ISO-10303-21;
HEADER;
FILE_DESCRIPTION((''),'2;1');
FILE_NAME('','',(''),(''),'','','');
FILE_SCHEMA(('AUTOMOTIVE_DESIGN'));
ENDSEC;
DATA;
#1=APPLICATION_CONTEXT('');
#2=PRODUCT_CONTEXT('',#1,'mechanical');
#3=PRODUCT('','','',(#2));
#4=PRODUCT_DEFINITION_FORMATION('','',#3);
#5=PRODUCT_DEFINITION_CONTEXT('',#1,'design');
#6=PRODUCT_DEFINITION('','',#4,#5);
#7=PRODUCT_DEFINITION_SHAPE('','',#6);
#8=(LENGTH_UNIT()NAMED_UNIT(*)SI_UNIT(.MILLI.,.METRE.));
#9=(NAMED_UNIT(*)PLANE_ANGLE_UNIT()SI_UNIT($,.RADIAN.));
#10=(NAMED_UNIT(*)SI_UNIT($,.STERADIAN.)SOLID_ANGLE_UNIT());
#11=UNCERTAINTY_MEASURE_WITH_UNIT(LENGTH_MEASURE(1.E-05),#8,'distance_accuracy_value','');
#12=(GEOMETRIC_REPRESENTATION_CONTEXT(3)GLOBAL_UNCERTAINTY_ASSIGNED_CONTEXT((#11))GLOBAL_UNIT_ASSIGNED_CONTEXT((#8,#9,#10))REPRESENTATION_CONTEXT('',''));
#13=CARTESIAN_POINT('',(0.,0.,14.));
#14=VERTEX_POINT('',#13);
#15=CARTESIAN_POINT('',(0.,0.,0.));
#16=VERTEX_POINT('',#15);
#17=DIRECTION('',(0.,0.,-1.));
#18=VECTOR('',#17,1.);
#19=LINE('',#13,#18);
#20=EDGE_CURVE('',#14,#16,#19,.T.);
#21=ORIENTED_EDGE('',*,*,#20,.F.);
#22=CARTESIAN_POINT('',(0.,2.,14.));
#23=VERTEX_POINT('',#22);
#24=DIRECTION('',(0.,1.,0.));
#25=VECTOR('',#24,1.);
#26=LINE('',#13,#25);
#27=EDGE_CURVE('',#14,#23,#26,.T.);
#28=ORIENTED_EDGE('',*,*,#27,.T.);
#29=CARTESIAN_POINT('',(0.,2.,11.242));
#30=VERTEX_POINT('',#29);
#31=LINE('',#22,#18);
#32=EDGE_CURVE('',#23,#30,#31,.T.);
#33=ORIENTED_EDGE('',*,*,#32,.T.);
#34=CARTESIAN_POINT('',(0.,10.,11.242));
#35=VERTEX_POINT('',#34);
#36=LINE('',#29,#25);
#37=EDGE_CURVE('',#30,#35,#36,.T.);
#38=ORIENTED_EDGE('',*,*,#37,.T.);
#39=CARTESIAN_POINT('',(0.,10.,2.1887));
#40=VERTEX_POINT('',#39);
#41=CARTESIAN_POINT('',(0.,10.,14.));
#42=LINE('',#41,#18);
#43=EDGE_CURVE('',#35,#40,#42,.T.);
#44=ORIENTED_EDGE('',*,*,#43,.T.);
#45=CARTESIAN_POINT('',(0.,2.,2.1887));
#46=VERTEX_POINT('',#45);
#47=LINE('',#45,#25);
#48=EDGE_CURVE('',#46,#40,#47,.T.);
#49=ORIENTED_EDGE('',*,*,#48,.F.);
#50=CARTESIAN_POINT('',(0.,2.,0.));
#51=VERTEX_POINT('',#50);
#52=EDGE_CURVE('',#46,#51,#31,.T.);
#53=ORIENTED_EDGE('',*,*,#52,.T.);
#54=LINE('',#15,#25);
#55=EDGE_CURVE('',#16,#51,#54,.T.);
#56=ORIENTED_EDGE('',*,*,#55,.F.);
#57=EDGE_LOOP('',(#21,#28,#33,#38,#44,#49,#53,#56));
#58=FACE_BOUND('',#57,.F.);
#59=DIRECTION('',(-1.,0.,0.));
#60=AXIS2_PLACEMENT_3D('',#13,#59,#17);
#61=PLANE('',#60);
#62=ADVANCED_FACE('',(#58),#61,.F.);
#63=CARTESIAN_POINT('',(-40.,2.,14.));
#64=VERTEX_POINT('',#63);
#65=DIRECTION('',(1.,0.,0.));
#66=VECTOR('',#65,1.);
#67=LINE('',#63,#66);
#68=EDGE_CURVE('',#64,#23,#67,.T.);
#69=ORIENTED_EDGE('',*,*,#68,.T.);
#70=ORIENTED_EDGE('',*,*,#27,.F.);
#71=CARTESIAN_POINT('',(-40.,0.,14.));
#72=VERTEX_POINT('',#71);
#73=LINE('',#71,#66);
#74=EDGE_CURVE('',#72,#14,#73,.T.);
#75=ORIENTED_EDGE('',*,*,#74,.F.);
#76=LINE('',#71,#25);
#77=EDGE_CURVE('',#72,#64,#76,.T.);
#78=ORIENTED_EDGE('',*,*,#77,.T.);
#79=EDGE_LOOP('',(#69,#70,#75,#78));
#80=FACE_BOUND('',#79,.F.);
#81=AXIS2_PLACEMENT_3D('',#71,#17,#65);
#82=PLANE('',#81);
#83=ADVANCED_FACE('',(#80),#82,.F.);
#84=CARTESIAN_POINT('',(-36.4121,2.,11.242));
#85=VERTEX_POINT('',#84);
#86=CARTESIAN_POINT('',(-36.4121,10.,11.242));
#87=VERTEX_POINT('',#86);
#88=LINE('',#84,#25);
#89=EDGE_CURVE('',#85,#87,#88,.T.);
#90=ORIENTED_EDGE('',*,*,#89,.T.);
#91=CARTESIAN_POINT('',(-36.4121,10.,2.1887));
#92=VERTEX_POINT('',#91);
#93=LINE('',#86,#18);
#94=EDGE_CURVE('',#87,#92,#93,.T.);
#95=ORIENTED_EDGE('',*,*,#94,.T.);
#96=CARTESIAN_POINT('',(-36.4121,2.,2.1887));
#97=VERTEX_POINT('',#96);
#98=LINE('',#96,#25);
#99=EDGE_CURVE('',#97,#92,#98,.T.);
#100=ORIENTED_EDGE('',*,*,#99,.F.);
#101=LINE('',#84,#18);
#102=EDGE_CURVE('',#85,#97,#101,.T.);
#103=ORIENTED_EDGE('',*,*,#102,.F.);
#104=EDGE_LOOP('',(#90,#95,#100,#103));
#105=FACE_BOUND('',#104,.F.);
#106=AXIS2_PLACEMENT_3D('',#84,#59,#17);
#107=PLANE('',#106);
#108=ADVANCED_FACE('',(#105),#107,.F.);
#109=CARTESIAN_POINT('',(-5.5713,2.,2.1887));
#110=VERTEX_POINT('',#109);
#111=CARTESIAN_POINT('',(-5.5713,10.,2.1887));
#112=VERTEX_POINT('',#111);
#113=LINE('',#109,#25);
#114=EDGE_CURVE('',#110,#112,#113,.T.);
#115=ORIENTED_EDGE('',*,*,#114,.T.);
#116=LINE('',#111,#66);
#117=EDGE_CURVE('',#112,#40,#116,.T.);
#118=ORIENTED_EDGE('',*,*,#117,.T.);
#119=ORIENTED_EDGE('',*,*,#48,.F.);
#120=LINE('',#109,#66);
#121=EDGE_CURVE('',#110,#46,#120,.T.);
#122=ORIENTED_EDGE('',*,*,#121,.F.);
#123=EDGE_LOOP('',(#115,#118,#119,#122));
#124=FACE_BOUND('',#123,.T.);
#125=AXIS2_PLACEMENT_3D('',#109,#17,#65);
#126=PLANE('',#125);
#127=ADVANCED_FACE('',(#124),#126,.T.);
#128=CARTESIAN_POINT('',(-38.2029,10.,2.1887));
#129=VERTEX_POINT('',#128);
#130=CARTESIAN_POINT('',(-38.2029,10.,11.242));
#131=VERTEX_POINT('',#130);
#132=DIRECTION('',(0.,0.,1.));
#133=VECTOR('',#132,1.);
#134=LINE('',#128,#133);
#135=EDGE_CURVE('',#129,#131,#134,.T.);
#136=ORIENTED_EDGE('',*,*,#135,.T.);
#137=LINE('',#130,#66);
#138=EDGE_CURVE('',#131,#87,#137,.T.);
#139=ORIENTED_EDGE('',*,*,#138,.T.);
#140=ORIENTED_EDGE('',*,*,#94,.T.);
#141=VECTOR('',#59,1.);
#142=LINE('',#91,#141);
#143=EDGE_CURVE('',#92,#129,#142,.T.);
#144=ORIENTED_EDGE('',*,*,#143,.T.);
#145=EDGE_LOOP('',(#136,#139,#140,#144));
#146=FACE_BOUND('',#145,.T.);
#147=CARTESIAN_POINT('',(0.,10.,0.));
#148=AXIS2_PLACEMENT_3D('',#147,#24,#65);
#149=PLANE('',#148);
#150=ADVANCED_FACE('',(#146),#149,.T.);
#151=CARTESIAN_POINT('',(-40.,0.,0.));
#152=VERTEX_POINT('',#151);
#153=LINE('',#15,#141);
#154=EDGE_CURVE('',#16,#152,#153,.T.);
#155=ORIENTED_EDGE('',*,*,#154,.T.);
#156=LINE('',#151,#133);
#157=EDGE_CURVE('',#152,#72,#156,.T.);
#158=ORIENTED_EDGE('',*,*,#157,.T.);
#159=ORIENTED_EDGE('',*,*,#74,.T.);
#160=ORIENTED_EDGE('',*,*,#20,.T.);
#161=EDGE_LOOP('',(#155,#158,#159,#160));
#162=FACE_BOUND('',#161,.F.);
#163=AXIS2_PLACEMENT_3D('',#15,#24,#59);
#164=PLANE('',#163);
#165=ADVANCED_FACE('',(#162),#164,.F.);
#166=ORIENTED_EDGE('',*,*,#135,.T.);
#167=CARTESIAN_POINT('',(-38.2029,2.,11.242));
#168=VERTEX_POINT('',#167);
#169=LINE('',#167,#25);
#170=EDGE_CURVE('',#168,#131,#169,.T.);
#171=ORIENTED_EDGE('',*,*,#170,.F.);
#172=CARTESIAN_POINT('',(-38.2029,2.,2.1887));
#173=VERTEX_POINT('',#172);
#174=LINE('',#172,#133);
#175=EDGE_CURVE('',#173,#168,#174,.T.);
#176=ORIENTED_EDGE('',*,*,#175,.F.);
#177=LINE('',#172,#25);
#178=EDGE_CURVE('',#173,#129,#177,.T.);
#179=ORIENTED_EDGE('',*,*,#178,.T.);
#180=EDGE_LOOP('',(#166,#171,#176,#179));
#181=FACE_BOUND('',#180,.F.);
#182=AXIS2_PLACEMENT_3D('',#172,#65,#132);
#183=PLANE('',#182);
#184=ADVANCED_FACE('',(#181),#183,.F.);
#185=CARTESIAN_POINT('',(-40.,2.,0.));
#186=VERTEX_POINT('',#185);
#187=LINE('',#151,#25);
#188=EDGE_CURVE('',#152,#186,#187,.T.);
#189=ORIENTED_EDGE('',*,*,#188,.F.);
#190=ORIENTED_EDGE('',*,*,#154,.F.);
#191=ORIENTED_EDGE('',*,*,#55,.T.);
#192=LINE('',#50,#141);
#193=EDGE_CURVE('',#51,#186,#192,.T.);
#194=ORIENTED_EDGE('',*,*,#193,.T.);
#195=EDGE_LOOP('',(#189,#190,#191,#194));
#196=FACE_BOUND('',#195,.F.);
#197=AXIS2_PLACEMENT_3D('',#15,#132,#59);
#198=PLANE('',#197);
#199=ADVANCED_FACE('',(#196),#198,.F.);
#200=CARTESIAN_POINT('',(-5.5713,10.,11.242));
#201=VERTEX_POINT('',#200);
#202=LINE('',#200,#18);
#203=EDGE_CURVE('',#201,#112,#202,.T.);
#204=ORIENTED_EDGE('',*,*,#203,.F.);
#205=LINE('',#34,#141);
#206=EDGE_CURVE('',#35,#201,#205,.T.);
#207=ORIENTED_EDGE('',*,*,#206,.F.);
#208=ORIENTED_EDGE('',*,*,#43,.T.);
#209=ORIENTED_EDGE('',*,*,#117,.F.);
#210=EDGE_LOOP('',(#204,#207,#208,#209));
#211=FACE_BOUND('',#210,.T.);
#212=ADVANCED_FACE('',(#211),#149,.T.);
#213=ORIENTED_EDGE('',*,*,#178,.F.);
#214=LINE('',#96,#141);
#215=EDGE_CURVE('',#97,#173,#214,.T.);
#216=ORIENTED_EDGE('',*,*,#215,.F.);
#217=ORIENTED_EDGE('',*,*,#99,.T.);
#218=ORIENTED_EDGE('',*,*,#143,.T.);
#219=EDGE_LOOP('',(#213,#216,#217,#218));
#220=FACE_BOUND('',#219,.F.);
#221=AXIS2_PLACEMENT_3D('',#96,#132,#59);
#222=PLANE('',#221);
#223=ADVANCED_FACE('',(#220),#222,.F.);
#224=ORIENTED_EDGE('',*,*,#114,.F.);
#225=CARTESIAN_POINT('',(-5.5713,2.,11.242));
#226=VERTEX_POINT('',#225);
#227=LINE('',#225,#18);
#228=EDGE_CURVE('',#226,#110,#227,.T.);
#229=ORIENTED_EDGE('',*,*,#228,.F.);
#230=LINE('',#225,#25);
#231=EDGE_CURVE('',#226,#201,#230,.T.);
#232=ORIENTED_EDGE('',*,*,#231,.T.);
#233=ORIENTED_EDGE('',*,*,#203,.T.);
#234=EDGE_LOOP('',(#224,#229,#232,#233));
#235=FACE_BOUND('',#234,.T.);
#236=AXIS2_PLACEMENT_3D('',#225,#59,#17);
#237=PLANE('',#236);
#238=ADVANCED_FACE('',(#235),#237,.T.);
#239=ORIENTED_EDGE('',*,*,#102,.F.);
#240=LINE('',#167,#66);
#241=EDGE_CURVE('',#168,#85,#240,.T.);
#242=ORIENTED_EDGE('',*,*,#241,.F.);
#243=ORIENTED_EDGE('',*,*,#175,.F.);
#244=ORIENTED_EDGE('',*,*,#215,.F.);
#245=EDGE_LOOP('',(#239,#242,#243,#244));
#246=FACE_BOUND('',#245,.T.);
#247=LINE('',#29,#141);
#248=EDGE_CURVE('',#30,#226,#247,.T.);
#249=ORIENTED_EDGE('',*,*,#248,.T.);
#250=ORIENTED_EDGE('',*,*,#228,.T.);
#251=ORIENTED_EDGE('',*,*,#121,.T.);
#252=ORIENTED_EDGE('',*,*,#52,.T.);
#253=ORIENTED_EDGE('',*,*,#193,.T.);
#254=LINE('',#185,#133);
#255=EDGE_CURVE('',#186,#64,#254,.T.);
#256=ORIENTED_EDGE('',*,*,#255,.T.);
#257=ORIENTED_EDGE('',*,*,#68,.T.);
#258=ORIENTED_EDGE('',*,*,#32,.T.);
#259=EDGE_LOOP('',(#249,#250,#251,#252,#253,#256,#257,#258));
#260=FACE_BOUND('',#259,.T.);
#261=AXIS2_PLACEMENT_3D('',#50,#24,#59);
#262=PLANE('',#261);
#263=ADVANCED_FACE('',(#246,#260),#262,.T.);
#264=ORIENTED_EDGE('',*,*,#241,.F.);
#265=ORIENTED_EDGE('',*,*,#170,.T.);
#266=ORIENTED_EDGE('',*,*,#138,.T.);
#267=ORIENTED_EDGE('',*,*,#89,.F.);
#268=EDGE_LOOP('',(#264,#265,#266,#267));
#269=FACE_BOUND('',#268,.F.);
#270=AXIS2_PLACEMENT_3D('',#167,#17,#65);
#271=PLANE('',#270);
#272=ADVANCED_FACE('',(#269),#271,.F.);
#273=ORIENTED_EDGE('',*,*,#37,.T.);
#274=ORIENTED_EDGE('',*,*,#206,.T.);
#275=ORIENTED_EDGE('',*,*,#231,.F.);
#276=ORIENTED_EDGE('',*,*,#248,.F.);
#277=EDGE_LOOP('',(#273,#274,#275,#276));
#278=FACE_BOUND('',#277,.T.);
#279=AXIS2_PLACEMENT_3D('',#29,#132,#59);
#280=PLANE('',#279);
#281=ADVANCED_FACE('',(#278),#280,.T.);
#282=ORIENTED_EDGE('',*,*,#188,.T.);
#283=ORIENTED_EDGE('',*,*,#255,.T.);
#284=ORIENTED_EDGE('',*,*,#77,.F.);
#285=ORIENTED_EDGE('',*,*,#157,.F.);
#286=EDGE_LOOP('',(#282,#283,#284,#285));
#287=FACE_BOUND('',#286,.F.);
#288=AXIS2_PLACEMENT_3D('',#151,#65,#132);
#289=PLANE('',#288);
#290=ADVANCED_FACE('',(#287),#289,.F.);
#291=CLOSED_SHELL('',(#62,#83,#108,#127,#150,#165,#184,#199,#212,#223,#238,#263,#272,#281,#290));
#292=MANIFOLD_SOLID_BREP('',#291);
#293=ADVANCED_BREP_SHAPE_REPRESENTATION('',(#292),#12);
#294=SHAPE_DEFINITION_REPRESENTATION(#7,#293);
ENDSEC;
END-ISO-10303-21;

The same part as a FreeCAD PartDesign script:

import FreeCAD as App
import Part
import Sketcher

doc = App.newDocument("Part")
params = doc.addObject("Spreadsheet::Sheet", "Params")
for row, (alias, value) in enumerate([
    ("sketch1_width", "40 mm"),
    ("sketch1_height", "14 mm"),
    ("pad1_length", "2 mm"),
    ("pad2_length", "8 mm"),
], start=1):
    params.set(f"A{row}", alias)
    params.set(f"B{row}", "=" + value)
    params.setAlias(f"B{row}", alias)

body = doc.addObject("PartDesign::Body", "Body")

# Sketch on XZ plane
sketch1 = doc.addObject("Sketcher::SketchObject", "Sketch")
body.addObject(sketch1)
sketch1.AttachmentSupport = (doc.XZ_Plane, [""])
sketch1.MapMode = "FlatFace"
sketch1.addGeometry(Part.LineSegment(App.Vector(0, 14, 0), App.Vector(0, 0, 0)), False)
sketch1.addGeometry(Part.LineSegment(App.Vector(0, 0, 0), App.Vector(-40, 0, 0)), False)
sketch1.addGeometry(Part.LineSegment(App.Vector(-40, 0, 0), App.Vector(-40, 14, 0)), False)
sketch1.addGeometry(Part.LineSegment(App.Vector(-40, 14, 0), App.Vector(0, 14, 0)), False)
sketch1.addConstraint(Sketcher.Constraint("Coincident", 0, 2, 1, 1))
sketch1.addConstraint(Sketcher.Constraint("Coincident", 1, 2, 2, 1))
sketch1.addConstraint(Sketcher.Constraint("Coincident", 2, 2, 3, 1))
sketch1.addConstraint(Sketcher.Constraint("Coincident", 3, 2, 0, 1))
sketch1.addConstraint(Sketcher.Constraint("Vertical", 0))
sketch1.addConstraint(Sketcher.Constraint("Horizontal", 1))
sketch1.addConstraint(Sketcher.Constraint("Vertical", 2))
sketch1.addConstraint(Sketcher.Constraint("Horizontal", 3))
sketch1.addConstraint(Sketcher.Constraint("Coincident", 0, 2, -1, 1))
sketch1.addConstraint(Sketcher.Constraint("DistanceX", 1, 2, 1, 1, 40.0))
sketch1.addConstraint(Sketcher.Constraint("DistanceY", 0, 2, 0, 1, 14.0))
sketch1.setExpression("Constraints[9]", "Params.sketch1_width")
sketch1.setExpression("Constraints[10]", "Params.sketch1_height")
pad1 = doc.addObject("PartDesign::Pad", "Pad")
body.addObject(pad1)
pad1.Profile = sketch1
pad1.setExpression("Length", "Params.pad1_length")
pad1.Reversed = True

# Sketch on XZ plane
sketch2 = doc.addObject("Sketcher::SketchObject", "Sketch001")
body.addObject(sketch2)
sketch2.AttachmentSupport = (doc.XZ_Plane, [""])
sketch2.MapMode = "FlatFace"
sketch2.AttachmentOffset = App.Placement(App.Vector(0, 0, -2), App.Rotation())
sketch2.addGeometry(Part.LineSegment(App.Vector(-5.6, 11.2, 0), App.Vector(0, 11.2, 0)), False)
sketch2.addGeometry(Part.LineSegment(App.Vector(0, 11.2, 0), App.Vector(0, 2.2, 0)), False)
sketch2.addGeometry(Part.LineSegment(App.Vector(0, 2.2, 0), App.Vector(-5.6, 2.2, 0)), False)
sketch2.addGeometry(Part.LineSegment(App.Vector(-5.6, 2.2, 0), App.Vector(-5.6, 11.2, 0)), False)
sketch2.addGeometry(Part.LineSegment(App.Vector(-38.2, 2.2, 0), App.Vector(-38.2, 11.2, 0)), False)
sketch2.addGeometry(Part.LineSegment(App.Vector(-38.2, 11.2, 0), App.Vector(-36.4, 11.2, 0)), False)
sketch2.addGeometry(Part.LineSegment(App.Vector(-36.4, 11.2, 0), App.Vector(-36.4, 2.2, 0)), False)
sketch2.addGeometry(Part.LineSegment(App.Vector(-36.4, 2.2, 0), App.Vector(-38.2, 2.2, 0)), False)
sketch2.addConstraint(Sketcher.Constraint("Coincident", 0, 2, 1, 1))
sketch2.addConstraint(Sketcher.Constraint("Coincident", 1, 2, 2, 1))
sketch2.addConstraint(Sketcher.Constraint("Coincident", 2, 2, 3, 1))
sketch2.addConstraint(Sketcher.Constraint("Coincident", 3, 2, 0, 1))
sketch2.addConstraint(Sketcher.Constraint("Coincident", 4, 2, 5, 1))
sketch2.addConstraint(Sketcher.Constraint("Coincident", 5, 2, 6, 1))
sketch2.addConstraint(Sketcher.Constraint("Coincident", 6, 2, 7, 1))
sketch2.addConstraint(Sketcher.Constraint("Coincident", 7, 2, 4, 1))
sketch2.addConstraint(Sketcher.Constraint("Horizontal", 0))
sketch2.addConstraint(Sketcher.Constraint("Vertical", 1))
sketch2.addConstraint(Sketcher.Constraint("Horizontal", 2))
sketch2.addConstraint(Sketcher.Constraint("Vertical", 3))
sketch2.addConstraint(Sketcher.Constraint("Vertical", 4))
sketch2.addConstraint(Sketcher.Constraint("Horizontal", 5))
sketch2.addConstraint(Sketcher.Constraint("Vertical", 6))
sketch2.addConstraint(Sketcher.Constraint("Horizontal", 7))
sketch2.addConstraint(Sketcher.Constraint("PointOnObject", 0, 2, -2))
sketch2.addConstraint(Sketcher.Constraint("Horizontal", 3, 2, 4, 2))
sketch2.addConstraint(Sketcher.Constraint("Horizontal", 2, 2, 6, 2))
sketch2.addConstraint(Sketcher.Constraint("DistanceX", 0, 1, 0, 2, 5.5713))
sketch2.addConstraint(Sketcher.Constraint("DistanceX", 5, 1, 5, 2, 1.7908))
sketch2.addConstraint(Sketcher.Constraint("DistanceY", 1, 2, 1, 1, 9.0533))
sketch2.addConstraint(Sketcher.Constraint("DistanceY", -1, 1, 0, 2, 11.242))
sketch2.addConstraint(Sketcher.Constraint("DistanceX", 4, 2, -1, 1, 38.203))
pad2 = doc.addObject("PartDesign::Pad", "Pad001")
body.addObject(pad2)
pad2.Profile = sketch2
pad2.setExpression("Length", "Params.pad2_length")
pad2.Reversed = True

doc.recompute()
